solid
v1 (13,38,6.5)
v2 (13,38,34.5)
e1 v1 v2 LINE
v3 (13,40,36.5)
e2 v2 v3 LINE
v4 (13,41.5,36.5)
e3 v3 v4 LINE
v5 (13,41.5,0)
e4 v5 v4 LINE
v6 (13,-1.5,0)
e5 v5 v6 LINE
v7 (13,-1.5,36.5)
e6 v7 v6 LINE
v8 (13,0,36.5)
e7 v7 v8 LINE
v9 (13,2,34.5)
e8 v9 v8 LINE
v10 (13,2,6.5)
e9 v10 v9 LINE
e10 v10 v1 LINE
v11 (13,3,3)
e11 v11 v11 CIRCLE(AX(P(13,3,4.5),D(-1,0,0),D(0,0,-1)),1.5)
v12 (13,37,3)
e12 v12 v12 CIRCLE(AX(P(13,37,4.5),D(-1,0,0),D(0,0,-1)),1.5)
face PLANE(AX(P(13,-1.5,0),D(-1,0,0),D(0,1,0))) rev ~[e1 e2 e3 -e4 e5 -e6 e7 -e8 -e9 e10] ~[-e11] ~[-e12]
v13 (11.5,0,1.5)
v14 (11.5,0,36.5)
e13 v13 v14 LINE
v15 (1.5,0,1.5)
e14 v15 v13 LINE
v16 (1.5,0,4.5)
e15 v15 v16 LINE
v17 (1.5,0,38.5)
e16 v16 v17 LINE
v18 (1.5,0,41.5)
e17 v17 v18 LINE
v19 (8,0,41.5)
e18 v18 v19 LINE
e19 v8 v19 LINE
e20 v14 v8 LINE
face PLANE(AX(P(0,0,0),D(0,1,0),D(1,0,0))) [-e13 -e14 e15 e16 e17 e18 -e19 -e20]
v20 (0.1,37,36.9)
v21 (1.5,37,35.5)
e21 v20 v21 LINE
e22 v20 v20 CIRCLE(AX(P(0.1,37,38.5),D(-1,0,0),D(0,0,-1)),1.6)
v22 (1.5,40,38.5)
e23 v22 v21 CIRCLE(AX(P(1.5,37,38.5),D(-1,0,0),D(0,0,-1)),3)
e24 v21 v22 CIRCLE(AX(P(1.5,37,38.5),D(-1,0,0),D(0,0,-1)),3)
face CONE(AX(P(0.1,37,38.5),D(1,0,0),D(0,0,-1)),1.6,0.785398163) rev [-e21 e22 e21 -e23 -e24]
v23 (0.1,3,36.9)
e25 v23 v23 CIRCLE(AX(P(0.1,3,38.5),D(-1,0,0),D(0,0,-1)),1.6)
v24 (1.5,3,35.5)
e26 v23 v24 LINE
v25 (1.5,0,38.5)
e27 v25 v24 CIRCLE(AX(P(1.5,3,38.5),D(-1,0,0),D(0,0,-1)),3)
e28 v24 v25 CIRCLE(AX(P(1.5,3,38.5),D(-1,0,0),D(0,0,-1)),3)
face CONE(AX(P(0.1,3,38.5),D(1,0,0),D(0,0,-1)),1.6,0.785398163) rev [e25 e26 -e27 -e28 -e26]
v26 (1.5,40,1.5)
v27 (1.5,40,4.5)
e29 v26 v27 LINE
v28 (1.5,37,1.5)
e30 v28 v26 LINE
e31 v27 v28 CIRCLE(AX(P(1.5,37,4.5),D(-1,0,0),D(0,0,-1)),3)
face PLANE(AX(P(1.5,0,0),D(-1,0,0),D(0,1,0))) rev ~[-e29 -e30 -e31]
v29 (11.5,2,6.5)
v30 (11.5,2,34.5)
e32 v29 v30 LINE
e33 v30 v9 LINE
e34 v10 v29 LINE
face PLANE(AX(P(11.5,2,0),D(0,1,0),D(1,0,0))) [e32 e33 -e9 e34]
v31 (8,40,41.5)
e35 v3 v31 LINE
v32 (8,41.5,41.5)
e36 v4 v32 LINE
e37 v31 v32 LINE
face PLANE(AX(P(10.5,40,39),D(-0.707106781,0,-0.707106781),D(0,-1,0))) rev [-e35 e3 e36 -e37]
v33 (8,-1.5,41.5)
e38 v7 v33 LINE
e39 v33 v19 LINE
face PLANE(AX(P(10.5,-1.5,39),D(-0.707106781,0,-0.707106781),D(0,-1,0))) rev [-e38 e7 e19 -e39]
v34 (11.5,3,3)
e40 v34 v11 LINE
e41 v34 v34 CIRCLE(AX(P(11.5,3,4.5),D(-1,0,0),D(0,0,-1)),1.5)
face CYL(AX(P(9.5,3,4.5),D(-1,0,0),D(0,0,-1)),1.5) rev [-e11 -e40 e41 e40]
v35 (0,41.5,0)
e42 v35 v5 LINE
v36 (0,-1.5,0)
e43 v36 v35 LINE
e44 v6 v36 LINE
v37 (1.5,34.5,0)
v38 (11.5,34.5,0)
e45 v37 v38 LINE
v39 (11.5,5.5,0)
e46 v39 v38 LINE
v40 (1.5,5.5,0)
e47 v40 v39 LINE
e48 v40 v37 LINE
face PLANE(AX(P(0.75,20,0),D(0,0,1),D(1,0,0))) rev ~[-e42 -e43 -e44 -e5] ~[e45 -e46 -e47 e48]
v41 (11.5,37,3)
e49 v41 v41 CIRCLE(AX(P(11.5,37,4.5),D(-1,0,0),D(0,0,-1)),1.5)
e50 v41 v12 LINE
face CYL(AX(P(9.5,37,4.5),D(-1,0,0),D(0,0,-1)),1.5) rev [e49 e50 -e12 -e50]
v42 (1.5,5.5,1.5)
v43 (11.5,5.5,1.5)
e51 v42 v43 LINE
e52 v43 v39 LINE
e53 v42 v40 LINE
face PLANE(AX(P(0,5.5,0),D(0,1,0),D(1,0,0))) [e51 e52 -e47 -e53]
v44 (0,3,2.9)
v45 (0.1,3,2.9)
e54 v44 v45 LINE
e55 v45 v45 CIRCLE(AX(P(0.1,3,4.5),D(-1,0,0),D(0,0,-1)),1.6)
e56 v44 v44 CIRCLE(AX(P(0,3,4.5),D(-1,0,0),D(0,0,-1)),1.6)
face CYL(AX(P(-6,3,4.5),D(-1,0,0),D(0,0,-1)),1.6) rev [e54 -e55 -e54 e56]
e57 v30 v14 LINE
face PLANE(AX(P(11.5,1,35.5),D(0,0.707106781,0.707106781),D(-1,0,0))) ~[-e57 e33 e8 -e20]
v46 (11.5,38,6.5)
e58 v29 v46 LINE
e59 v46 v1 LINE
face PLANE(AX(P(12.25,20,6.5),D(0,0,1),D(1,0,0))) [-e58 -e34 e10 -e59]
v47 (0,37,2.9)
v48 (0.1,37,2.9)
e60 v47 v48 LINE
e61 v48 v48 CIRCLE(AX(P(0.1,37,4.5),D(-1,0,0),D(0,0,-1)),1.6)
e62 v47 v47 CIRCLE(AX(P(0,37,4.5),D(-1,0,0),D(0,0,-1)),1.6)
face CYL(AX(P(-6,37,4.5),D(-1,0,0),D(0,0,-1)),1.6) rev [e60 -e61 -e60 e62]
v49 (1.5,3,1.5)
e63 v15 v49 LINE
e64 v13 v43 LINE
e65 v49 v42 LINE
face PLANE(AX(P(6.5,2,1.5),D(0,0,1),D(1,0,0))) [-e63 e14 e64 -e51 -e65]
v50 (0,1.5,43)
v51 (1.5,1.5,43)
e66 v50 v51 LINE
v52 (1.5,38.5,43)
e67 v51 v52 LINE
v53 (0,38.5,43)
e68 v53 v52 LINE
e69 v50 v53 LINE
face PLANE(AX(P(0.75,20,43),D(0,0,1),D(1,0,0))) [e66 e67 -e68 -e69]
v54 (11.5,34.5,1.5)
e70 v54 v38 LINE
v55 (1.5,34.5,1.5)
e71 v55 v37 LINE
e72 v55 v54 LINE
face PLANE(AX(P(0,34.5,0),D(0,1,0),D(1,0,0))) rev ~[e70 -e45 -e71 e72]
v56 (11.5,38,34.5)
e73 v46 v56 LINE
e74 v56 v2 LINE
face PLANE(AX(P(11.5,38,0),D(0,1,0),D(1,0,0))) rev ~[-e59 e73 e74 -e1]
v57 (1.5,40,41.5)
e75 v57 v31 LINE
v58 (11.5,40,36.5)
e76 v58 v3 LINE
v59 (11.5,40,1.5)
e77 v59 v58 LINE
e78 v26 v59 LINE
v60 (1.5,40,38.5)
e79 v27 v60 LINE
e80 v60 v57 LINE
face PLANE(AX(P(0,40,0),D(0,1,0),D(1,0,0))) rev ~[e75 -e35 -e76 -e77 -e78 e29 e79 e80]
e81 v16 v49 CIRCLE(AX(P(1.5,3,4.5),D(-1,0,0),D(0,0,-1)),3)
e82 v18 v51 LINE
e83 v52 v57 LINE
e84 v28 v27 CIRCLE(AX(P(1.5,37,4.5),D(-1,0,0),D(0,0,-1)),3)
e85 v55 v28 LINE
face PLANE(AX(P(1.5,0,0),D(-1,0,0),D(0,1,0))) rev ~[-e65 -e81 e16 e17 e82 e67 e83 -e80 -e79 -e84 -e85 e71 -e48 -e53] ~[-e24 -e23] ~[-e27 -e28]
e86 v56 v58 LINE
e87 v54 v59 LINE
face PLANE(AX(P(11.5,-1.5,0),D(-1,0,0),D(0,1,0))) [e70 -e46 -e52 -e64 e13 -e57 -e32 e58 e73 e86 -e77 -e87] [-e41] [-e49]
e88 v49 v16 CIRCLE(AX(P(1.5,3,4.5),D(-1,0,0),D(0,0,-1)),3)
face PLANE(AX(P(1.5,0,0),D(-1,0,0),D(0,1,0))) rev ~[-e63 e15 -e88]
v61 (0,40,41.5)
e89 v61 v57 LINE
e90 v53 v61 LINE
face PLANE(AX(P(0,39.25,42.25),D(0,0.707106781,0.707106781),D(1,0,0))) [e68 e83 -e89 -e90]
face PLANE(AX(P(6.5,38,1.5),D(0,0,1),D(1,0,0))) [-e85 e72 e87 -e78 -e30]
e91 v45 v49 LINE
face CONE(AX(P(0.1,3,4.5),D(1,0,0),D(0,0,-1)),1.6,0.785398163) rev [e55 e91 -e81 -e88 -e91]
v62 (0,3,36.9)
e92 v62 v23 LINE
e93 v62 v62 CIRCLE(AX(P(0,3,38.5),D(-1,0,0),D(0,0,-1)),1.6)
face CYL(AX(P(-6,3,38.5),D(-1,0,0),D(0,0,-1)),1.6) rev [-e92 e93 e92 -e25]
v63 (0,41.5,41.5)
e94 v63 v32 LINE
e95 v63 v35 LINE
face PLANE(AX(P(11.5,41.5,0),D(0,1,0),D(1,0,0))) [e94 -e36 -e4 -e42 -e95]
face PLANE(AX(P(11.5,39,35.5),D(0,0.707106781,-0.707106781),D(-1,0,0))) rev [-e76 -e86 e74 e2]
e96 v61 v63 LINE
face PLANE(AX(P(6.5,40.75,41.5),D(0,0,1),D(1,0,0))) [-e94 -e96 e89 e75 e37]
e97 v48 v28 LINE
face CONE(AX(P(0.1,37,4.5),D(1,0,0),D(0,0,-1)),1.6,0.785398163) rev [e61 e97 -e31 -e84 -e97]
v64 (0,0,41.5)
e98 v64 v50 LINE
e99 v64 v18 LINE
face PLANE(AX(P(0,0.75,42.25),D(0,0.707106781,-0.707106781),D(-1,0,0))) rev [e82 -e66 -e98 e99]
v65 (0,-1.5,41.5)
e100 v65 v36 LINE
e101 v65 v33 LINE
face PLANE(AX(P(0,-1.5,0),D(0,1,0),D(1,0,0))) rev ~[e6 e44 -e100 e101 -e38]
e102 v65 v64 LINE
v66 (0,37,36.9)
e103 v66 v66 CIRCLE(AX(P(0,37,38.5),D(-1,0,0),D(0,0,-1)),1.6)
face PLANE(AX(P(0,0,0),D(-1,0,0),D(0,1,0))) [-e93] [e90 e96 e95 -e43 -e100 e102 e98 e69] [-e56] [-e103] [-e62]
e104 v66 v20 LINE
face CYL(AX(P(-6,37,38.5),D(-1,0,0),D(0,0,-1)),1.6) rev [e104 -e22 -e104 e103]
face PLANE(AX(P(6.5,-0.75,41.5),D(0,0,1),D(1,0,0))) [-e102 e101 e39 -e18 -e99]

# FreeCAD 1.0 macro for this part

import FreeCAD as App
import Part
import Sketcher


def edges_at(feature, points):
    """Names of the edges that pass closest to the given points."""
    edges = feature.Shape.Edges
    near = lambda p: min(range(len(edges)), key=lambda i: edges[i].distToShape(Part.Vertex(*p))[0])
    return sorted({f"Edge{near(p) + 1}" for p in points})


def add_polygon(sketch, points):
    """Adds a closed chain of lines whose ends are joined by coincident constraints."""
    first, n = sketch.GeometryCount, len(points)
    for a, b in zip(points, points[1:] + points[:1]):
        sketch.addGeometry(Part.LineSegment(App.Vector(*a, 0), App.Vector(*b, 0)), False)
    for i in range(n):
        sketch.addConstraint(Sketcher.Constraint("Coincident", first + i, 2, first + (i + 1) % n, 1))

doc = App.newDocument("Part")
body = doc.addObject("PartDesign::Body", "Body")

# Sketch on YZ plane
sketch1 = body.newObject("Sketcher::SketchObject", "Sketch")
sketch1.AttachmentSupport = (doc.getObject("YZ_Plane"), [""])
sketch1.MapMode = "FlatFace"
sketch1.AttachmentOffset = App.Placement(App.Vector(0, 0, 9.5), App.Rotation())
sketch1.addGeometry(Part.Circle(App.Vector(3, 4.5, 0), App.Vector(0, 0, 1), 1.5), False)
sketch1.addConstraint([
    Sketcher.Constraint("Diameter", 0, 3.0),
    Sketcher.Constraint("DistanceX", -1, 1, 0, 3, 3.0),
    Sketcher.Constraint("DistanceY", -1, 1, 0, 3, 4.5),
])
pad1 = body.newObject("PartDesign::Pad", "Pad")
pad1.Profile = sketch1
pad1.Length = 5
body2 = doc.addObject("PartDesign::Body", "Body001")
body2.AllowCompound = True

# Sketch on YZ plane
sketch2 = body2.newObject("Sketcher::SketchObject", "Sketch001")
sketch2.AttachmentSupport = (doc.getObject("YZ_Plane001"), [""])
sketch2.MapMode = "FlatFace"
sketch2.AttachmentOffset = App.Placement(App.Vector(0, 0, 9.5), App.Rotation())
sketch2.addGeometry(Part.Circle(App.Vector(37, 4.5, 0), App.Vector(0, 0, 1), 1.5), False)
sketch2.addConstraint([
    Sketcher.Constraint("Diameter", 0, 3.0),
    Sketcher.Constraint("DistanceX", -1, 1, 0, 3, 37.0),
    Sketcher.Constraint("DistanceY", -1, 1, 0, 3, 4.5),
])
pad2 = body2.newObject("PartDesign::Pad", "Pad001")
pad2.Profile = sketch2
pad2.Length = 5
doc.recompute()

boolean = body2.newObject("PartDesign::Boolean", "Boolean")
boolean.Type = "Fuse"
boolean.addObjects([body])
body3 = doc.addObject("PartDesign::Body", "Body002")

# Sketch on XY plane
sketch3 = body3.newObject("Sketcher::SketchObject", "Sketch002")
sketch3.AttachmentSupport = (doc.getObject("XY_Plane002"), [""])
sketch3.MapMode = "FlatFace"
add_polygon(sketch3, [(0, 0), (0, -1.5), (13, -1.5), (13, 0)])  # lines 0-3
sketch3.addConstraint([
    Sketcher.Constraint("Vertical", 0),
    Sketcher.Constraint("Horizontal", 1),
    Sketcher.Constraint("Vertical", 2),
    Sketcher.Constraint("Horizontal", 3),
    Sketcher.Constraint("Coincident", 3, 2, -1, 1),
    Sketcher.Constraint("DistanceX", 1, 1, 1, 2, 13.0),
    Sketcher.Constraint("DistanceY", 0, 2, 0, 1, 1.5),
])
pad3 = body3.newObject("PartDesign::Pad", "Pad002")
pad3.Profile = sketch3
pad3.Length = 41.5
doc.recompute()

chamfer = body3.newObject("PartDesign::Chamfer", "Chamfer")
chamfer.Base = (pad3, edges_at(pad3, [(13, -0.75, 41.5)]))
chamfer.Size = 5
body4 = doc.addObject("PartDesign::Body", "Body003")

# Sketch on XY plane
sketch4 = body4.newObject("Sketcher::SketchObject", "Sketch003")
sketch4.AttachmentSupport = (doc.getObject("XY_Plane003"), [""])
sketch4.MapMode = "FlatFace"
add_polygon(sketch4, [(0, 41.5), (0, 40), (13, 40), (13, 41.5)])  # lines 0-3
sketch4.addConstraint([
    Sketcher.Constraint("Vertical", 0),
    Sketcher.Constraint("Horizontal", 1),
    Sketcher.Constraint("Vertical", 2),
    Sketcher.Constraint("Horizontal", 3),
    Sketcher.Constraint("PointOnObject", 0, 2, -2),
    Sketcher.Constraint("DistanceX", 1, 1, 1, 2, 13.0),
    Sketcher.Constraint("DistanceY", 0, 2, 0, 1, 1.5),
    Sketcher.Constraint("DistanceY", -1, 1, 0, 2, 40.0),
])
pad4 = body4.newObject("PartDesign::Pad", "Pad003")
pad4.Profile = sketch4
pad4.Length = 41.5
doc.recompute()

chamfer2 = body4.newObject("PartDesign::Chamfer", "Chamfer001")
chamfer2.Base = (pad4, edges_at(pad4, [(13, 40.75, 41.5)]))
chamfer2.Size = 5
body5 = doc.addObject("PartDesign::Body", "Body004")

# Sketch on YZ plane
sketch5 = body5.newObject("Sketcher::SketchObject", "Sketch004")
sketch5.AttachmentSupport = (doc.getObject("YZ_Plane004"), [""])
sketch5.MapMode = "FlatFace"
sketch5.addGeometry(Part.Circle(App.Vector(37, 4.5, 0), App.Vector(0, 0, 1), 1.6), False)
sketch5.addConstraint([
    Sketcher.Constraint("Diameter", 0, 3.2),
    Sketcher.Constraint("DistanceX", -1, 1, 0, 3, 37.0),
    Sketcher.Constraint("DistanceY", -1, 1, 0, 3, 4.5),
])
pad5 = body5.newObject("PartDesign::Pad", "Pad004")
pad5.Profile = sketch5
pad5.Length = 10
body6 = doc.addObject("PartDesign::Body", "Body005")

# Sketch on YZ plane
sketch6 = body6.newObject("Sketcher::SketchObject", "Sketch005")
sketch6.AttachmentSupport = (doc.getObject("YZ_Plane005"), [""])
sketch6.MapMode = "FlatFace"
sketch6.addGeometry(Part.Circle(App.Vector(3, 38.5, 0), App.Vector(0, 0, 1), 1.6), False)
sketch6.addConstraint([
    Sketcher.Constraint("Diameter", 0, 3.2),
    Sketcher.Constraint("DistanceX", -1, 1, 0, 3, 3.0),
    Sketcher.Constraint("DistanceY", -1, 1, 0, 3, 38.5),
])
pad6 = body6.newObject("PartDesign::Pad", "Pad005")
pad6.Profile = sketch6
pad6.Length = 10
body7 = doc.addObject("PartDesign::Body", "Body006")

# Sketch on YZ plane
sketch7 = body7.newObject("Sketcher::SketchObject", "Sketch006")
sketch7.AttachmentSupport = (doc.getObject("YZ_Plane006"), [""])
sketch7.MapMode = "FlatFace"
sketch7.addGeometry(Part.Circle(App.Vector(3, 4.5, 0), App.Vector(0, 0, 1), 1.6), False)
sketch7.addConstraint([
    Sketcher.Constraint("Diameter", 0, 3.2),
    Sketcher.Constraint("DistanceX", -1, 1, 0, 3, 3.0),
    Sketcher.Constraint("DistanceY", -1, 1, 0, 3, 4.5),
])
pad7 = body7.newObject("PartDesign::Pad", "Pad006")
pad7.Profile = sketch7
pad7.Length = 10
body8 = doc.addObject("PartDesign::Body", "Body007")
body8.AllowCompound = True

# Sketch on YZ plane
sketch8 = body8.newObject("Sketcher::SketchObject", "Sketch007")
sketch8.AttachmentSupport = (doc.getObject("YZ_Plane007"), [""])
sketch8.MapMode = "FlatFace"
sketch8.addGeometry(Part.Circle(App.Vector(37, 38.5, 0), App.Vector(0, 0, 1), 1.6), False)
sketch8.addConstraint([
    Sketcher.Constraint("Diameter", 0, 3.2),
    Sketcher.Constraint("DistanceX", -1, 1, 0, 3, 37.0),
    Sketcher.Constraint("DistanceY", -1, 1, 0, 3, 38.5),
])
pad8 = body8.newObject("PartDesign::Pad", "Pad007")
pad8.Profile = sketch8
pad8.Length = 10
doc.recompute()

boolean2 = body8.newObject("PartDesign::Boolean", "Boolean001")
boolean2.Type = "Fuse"
boolean2.addObjects([body5])
doc.recompute()

boolean3 = body8.newObject("PartDesign::Boolean", "Boolean002")
boolean3.Type = "Fuse"
boolean3.addObjects([body6])
doc.recompute()

boolean4 = body8.newObject("PartDesign::Boolean", "Boolean003")
boolean4.Type = "Fuse"
boolean4.addObjects([body7])
body9 = doc.addObject("PartDesign::Body", "Body008")

# Sketch on XY plane
sketch9 = body9.newObject("Sketcher::SketchObject", "Sketch008")
sketch9.AttachmentSupport = (doc.getObject("XY_Plane008"), [""])
sketch9.MapMode = "FlatFace"
add_polygon(sketch9, [(0, 41), (0, -1), (7.5, -1), (7.5, 41)])  # lines 0-3
sketch9.addConstraint([
    Sketcher.Constraint("Vertical", 0),
    Sketcher.Constraint("Horizontal", 1),
    Sketcher.Constraint("Vertical", 2),
    Sketcher.Constraint("Horizontal", 3),
    Sketcher.Constraint("PointOnObject", 0, 2, -2),
    Sketcher.Constraint("DistanceY", 0, 2, 0, 1, 42.0),
    Sketcher.Constraint("DistanceX", 1, 1, 1, 2, 7.5),
    Sketcher.Constraint("DistanceY", 0, 2, -1, 1, 1.0),
])
pad9 = body9.newObject("PartDesign::Pad", "Pad008")
pad9.Profile = sketch9
pad9.Length = 43
doc.recompute()

boolean5 = body9.newObject("PartDesign::Boolean", "Boolean004")
boolean5.Type = "Cut"
boolean5.addObjects([body8])
doc.recompute()

chamfer3 = body9.newObject("PartDesign::Chamfer", "Chamfer002")
chamfer3.Base = (boolean5, edges_at(boolean5, [
    (7.5, 37, 40.1),
    (7.5, 3, 40.1),
    (7.5, 3, 6.1),
    (7.5, 37, 6.1),
]))
chamfer3.Size = 1.4
body10 = doc.addObject("PartDesign::Body", "Body009")
doc.recompute()

body9.Placement = App.Placement(App.Vector(-6, 0, 0), App.Rotation(App.Vector(0, 0, 1), 0))
boolean6 = body10.newObject("PartDesign::Boolean", "Boolean005")
boolean6.Type = "Fuse"
boolean6.addObjects([body9])
body11 = doc.addObject("PartDesign::Body", "Body010")

# Sketch on XY plane
sketch10 = body11.newObject("Sketcher::SketchObject", "Sketch009")
sketch10.AttachmentSupport = (doc.getObject("XY_Plane010"), [""])
sketch10.MapMode = "FlatFace"
add_polygon(sketch10, [(0, 40), (0, 0), (1.5, 0), (1.5, 40)])  # lines 0-3
sketch10.addConstraint([
    Sketcher.Constraint("Vertical", 0),
    Sketcher.Constraint("Horizontal", 1),
    Sketcher.Constraint("Vertical", 2),
    Sketcher.Constraint("Horizontal", 3),
    Sketcher.Constraint("Coincident", 0, 2, -1, 1),
    Sketcher.Constraint("DistanceY", 0, 2, 0, 1, 40.0),
    Sketcher.Constraint("DistanceX", 1, 1, 1, 2, 1.5),
])
pad10 = body11.newObject("PartDesign::Pad", "Pad009")
pad10.Profile = sketch10
pad10.Length = 43
doc.recompute()

boolean7 = body11.newObject("PartDesign::Boolean", "Boolean006")
boolean7.Type = "Common"
boolean7.addObjects([body10])
doc.recompute()

chamfer4 = body11.newObject("PartDesign::Chamfer", "Chamfer003")
chamfer4.Base = (boolean7, edges_at(boolean7, [(0.75, 0, 43), (0.75, 40, 43)]))
chamfer4.Size = 1.5
body12 = doc.addObject("PartDesign::Body", "Body011")

# Sketch on XY plane
sketch11 = body12.newObject("Sketcher::SketchObject", "Sketch010")
sketch11.AttachmentSupport = (doc.getObject("XY_Plane011"), [""])
sketch11.MapMode = "FlatFace"
add_polygon(sketch11, [(11.5, 41.5), (11.5, -1.5), (13, -1.5), (13, 41.5)])  # lines 0-3
sketch11.addConstraint([
    Sketcher.Constraint("Vertical", 0),
    Sketcher.Constraint("Horizontal", 1),
    Sketcher.Constraint("Vertical", 2),
    Sketcher.Constraint("Horizontal", 3),
    Sketcher.Constraint("DistanceY", 0, 2, 0, 1, 43.0),
    Sketcher.Constraint("DistanceX", 1, 1, 1, 2, 1.5),
    Sketcher.Constraint("DistanceX", -1, 1, 1, 2, 13.0),
    Sketcher.Constraint("DistanceY", 0, 2, -1, 1, 1.5),
])
pad11 = body12.newObject("PartDesign::Pad", "Pad010")
pad11.Profile = sketch11
pad11.Length = 6.5
body13 = doc.addObject("PartDesign::Body", "Body012")

# Sketch on XY plane
sketch12 = body13.newObject("Sketcher::SketchObject", "Sketch011")
sketch12.AttachmentSupport = (doc.getObject("XY_Plane012"), [""])
sketch12.MapMode = "FlatFace"
add_polygon(sketch12, [(11.5, 2), (11.5, -1.5), (13, -1.5), (13, 2)])  # lines 0-3
sketch12.addConstraint([
    Sketcher.Constraint("Vertical", 0),
    Sketcher.Constraint("Horizontal", 1),
    Sketcher.Constraint("Vertical", 2),
    Sketcher.Constraint("Horizontal", 3),
    Sketcher.Constraint("DistanceX", 1, 1, 1, 2, 1.5),
    Sketcher.Constraint("DistanceY", 0, 2, 0, 1, 3.5),
    Sketcher.Constraint("DistanceX", -1, 1, 1, 2, 13.0),
    Sketcher.Constraint("DistanceY", -1, 1, 2, 2, 2.0),
])
pad12 = body13.newObject("PartDesign::Pad", "Pad011")
pad12.Profile = sketch12
pad12.Length = 36.5
doc.recompute()

chamfer5 = body13.newObject("PartDesign::Chamfer", "Chamfer004")
chamfer5.Base = (pad12, edges_at(pad12, [(12.25, 2, 36.5)]))
chamfer5.Size = 2
body14 = doc.addObject("PartDesign::Body", "Body013")

# Sketch on XY plane
sketch13 = body14.newObject("Sketcher::SketchObject", "Sketch012")
sketch13.AttachmentSupport = (doc.getObject("XY_Plane013"), [""])
sketch13.MapMode = "FlatFace"
add_polygon(sketch13, [(0, 41.5), (0, 34.5), (13, 34.5), (13, 41.5)])  # lines 0-3
sketch13.addConstraint([
    Sketcher.Constraint("Vertical", 0),
    Sketcher.Constraint("Horizontal", 1),
    Sketcher.Constraint("Vertical", 2),
    Sketcher.Constraint("Horizontal", 3),
    Sketcher.Constraint("PointOnObject", 0, 2, -2),
    Sketcher.Constraint("DistanceX", 1, 1, 1, 2, 13.0),
    Sketcher.Constraint("DistanceY", 0, 2, 0, 1, 7.0),
    Sketcher.Constraint("DistanceY", -1, 1, 0, 2, 34.5),
])
pad13 = body14.newObject("PartDesign::Pad", "Pad012")
pad13.Profile = sketch13
pad13.Length = 1.5
body15 = doc.addObject("PartDesign::Body", "Body014")

# Sketch on XY plane
sketch14 = body15.newObject("Sketcher::SketchObject", "Sketch013")
sketch14.AttachmentSupport = (doc.getObject("XY_Plane014"), [""])
sketch14.MapMode = "FlatFace"
add_polygon(sketch14, [(0, 5.5), (0, -1.5), (13, -1.5), (13, 5.5)])  # lines 0-3
sketch14.addConstraint([
    Sketcher.Constraint("Vertical", 0),
    Sketcher.Constraint("Horizontal", 1),
    Sketcher.Constraint("Vertical", 2),
    Sketcher.Constraint("Horizontal", 3),
    Sketcher.Constraint("PointOnObject", 0, 2, -2),
    Sketcher.Constraint("DistanceX", 1, 1, 1, 2, 13.0),
    Sketcher.Constraint("DistanceY", 0, 2, 0, 1, 7.0),
    Sketcher.Constraint("DistanceY", 0, 2, -1, 1, 1.5),
])
pad14 = body15.newObject("PartDesign::Pad", "Pad013")
pad14.Profile = sketch14
pad14.Length = 1.5
body16 = doc.addObject("PartDesign::Body", "Body015")
body16.AllowCompound = True

# Sketch on XY plane
sketch15 = body16.newObject("Sketcher::SketchObject", "Sketch014")
sketch15.AttachmentSupport = (doc.getObject("XY_Plane015"), [""])
sketch15.MapMode = "FlatFace"
add_polygon(sketch15, [(11.5, 41.5), (11.5, 38), (13, 38), (13, 41.5)])  # lines 0-3
sketch15.addConstraint([
    Sketcher.Constraint("Vertical", 0),
    Sketcher.Constraint("Horizontal", 1),
    Sketcher.Constraint("Vertical", 2),
    Sketcher.Constraint("Horizontal", 3),
    Sketcher.Constraint("DistanceX", 1, 1, 1, 2, 1.5),
    Sketcher.Constraint("DistanceY", 0, 2, 0, 1, 3.5),
    Sketcher.Constraint("DistanceY", -1, 1, 0, 2, 38.0),
    Sketcher.Constraint("DistanceX", -1, 1, 1, 2, 13.0),
])
pad15 = body16.newObject("PartDesign::Pad", "Pad014")
pad15.Profile = sketch15
pad15.Length = 36.5
doc.recompute()

chamfer6 = body16.newObject("PartDesign::Chamfer", "Chamfer005")
chamfer6.Base = (pad15, edges_at(pad15, [(12.25, 38, 36.5)]))
chamfer6.Size = 2
doc.recompute()

boolean8 = body16.newObject("PartDesign::Boolean", "Boolean007")
boolean8.Type = "Fuse"
boolean8.addObjects([body3])
doc.recompute()

boolean9 = body16.newObject("PartDesign::Boolean", "Boolean008")
boolean9.Type = "Fuse"
boolean9.addObjects([body4])
doc.recompute()

boolean10 = body16.newObject("PartDesign::Boolean", "Boolean009")
boolean10.Type = "Fuse"
boolean10.addObjects([body11])
doc.recompute()

boolean11 = body16.newObject("PartDesign::Boolean", "Boolean010")
boolean11.Type = "Fuse"
boolean11.addObjects([body12])
doc.recompute()

boolean12 = body16.newObject("PartDesign::Boolean", "Boolean011")
boolean12.Type = "Fuse"
boolean12.addObjects([body13])
doc.recompute()

boolean13 = body16.newObject("PartDesign::Boolean", "Boolean012")
boolean13.Type = "Fuse"
boolean13.addObjects([body14])
doc.recompute()

boolean14 = body16.newObject("PartDesign::Boolean", "Boolean013")
boolean14.Type = "Fuse"
boolean14.addObjects([body15])
doc.recompute()

boolean15 = body16.newObject("PartDesign::Boolean", "Boolean014")
boolean15.Type = "Cut"
boolean15.addObjects([body2])

doc.recompute()
